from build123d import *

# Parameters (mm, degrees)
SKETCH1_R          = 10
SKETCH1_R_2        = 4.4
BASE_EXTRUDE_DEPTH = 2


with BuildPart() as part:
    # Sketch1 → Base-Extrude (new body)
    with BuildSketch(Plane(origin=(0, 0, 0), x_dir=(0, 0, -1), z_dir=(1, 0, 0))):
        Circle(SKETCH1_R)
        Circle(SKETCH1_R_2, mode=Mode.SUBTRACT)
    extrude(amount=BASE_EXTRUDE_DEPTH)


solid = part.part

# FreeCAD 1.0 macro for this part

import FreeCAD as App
import Part
import Sketcher

V = App.Vector
Q = App.Units.Quantity

doc = App.newDocument("Part")
params = doc.addObject("Spreadsheet::Sheet", "Params")
for row, (alias, value) in enumerate([
    ("sketch1_diameter", "20 mm"),
    ("sketch1_diameter2", "8.8 mm"),
    ("pad1_length", "2 mm"),
], start=1):
    params.set(f"A{row}", alias)
    params.set(f"B{row}", "=" + value)
    params.setAlias(f"B{row}", alias)

body = doc.addObject("PartDesign::Body", "Body")

sketch1 = body.newObject("Sketcher::SketchObject", "Sketch")
sketch1.AttachmentSupport = (doc.getObject("YZ_Plane"), [""])
sketch1.MapMode = "FlatFace"
sketch1.addGeometry([
    Part.Circle(V(0, 0, 0), V(0, 0, 1), 10),
    Part.Circle(V(0, 0, 0), V(0, 0, 1), 4.4),
], False)
sketch1.addConstraint([
    Sketcher.Constraint("Coincident", 0, 3, -1, 1),
    Sketcher.Constraint("Coincident", 1, 3, -1, 1),
    Sketcher.Constraint("Diameter", 0, Q("20 mm")),
    Sketcher.Constraint("Diameter", 1, Q("8.8 mm")),
])
sketch1.setExpression("Constraints[2]", "Params.sketch1_diameter")
sketch1.setExpression("Constraints[3]", "Params.sketch1_diameter2")
pad1 = body.newObject("PartDesign::Pad", "Pad")
pad1.Profile = sketch1
pad1.setExpression("Length", "Params.pad1_length")

doc.recompute()
